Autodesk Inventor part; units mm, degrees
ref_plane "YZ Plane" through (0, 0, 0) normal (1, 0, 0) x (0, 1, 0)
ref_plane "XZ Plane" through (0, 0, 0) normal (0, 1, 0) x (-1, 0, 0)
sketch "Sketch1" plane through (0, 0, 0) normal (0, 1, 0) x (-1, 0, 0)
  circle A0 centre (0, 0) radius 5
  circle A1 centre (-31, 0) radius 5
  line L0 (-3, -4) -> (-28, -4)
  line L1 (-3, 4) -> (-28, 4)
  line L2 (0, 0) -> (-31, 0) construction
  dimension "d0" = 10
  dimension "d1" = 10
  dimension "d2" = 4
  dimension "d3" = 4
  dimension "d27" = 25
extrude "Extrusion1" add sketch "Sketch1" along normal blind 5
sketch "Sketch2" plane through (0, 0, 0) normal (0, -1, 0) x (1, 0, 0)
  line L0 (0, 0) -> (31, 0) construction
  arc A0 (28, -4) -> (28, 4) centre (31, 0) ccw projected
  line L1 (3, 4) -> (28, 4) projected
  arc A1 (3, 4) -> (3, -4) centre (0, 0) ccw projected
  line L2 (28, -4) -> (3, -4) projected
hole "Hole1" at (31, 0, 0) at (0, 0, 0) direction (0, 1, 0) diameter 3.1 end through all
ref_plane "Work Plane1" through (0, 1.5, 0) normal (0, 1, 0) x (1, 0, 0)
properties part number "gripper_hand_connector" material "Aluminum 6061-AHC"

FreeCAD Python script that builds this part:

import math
import FreeCAD as App
import Part
import Sketcher

V = App.Vector

doc = App.newDocument("Part")
body = doc.addObject("PartDesign::Body", "Body")

sketch1 = body.newObject("Sketcher::SketchObject", "Sketch")
sketch1.AttachmentSupport = (doc.getObject("XZ_Plane"), [""])
sketch1.MapMode = "FlatFace"
sketch1.addGeometry(Part.ArcOfCircle(Part.Circle(V(0, 0, 0), V(0, 0, 1), 5), math.radians(53.130102), math.radians(306.869898)), False)
sketch1.addGeometry(Part.LineSegment(V(3, 4, 0), V(28, 4, 0)), False)
sketch1.addGeometry(Part.ArcOfCircle(Part.Circle(V(31, 0, 0), V(0, 0, 1), 5), math.radians(-126.869898), math.radians(126.869898)), False)
sketch1.addGeometry(Part.LineSegment(V(28, -4, 0), V(3, -4, 0)), False)
sketch1.addConstraint(Sketcher.Constraint("Coincident", 0, 1, 1, 1))
sketch1.addConstraint(Sketcher.Constraint("Coincident", 1, 2, 2, 2))
sketch1.addConstraint(Sketcher.Constraint("Coincident", 2, 1, 3, 1))
sketch1.addConstraint(Sketcher.Constraint("Coincident", 3, 2, 0, 2))
sketch1.addConstraint(Sketcher.Constraint("Horizontal", 1))
sketch1.addConstraint(Sketcher.Constraint("Horizontal", 3))
sketch1.addConstraint(Sketcher.Constraint("Coincident", 0, 3, -1, 1))
sketch1.addConstraint(Sketcher.Constraint("Equal", 0, 2))
sketch1.addConstraint(Sketcher.Constraint("Symmetric", 1, 2, 2, 1, -1))
sketch1.addConstraint(Sketcher.Constraint("Radius", 0, 5.0))
sketch1.addConstraint(Sketcher.Constraint("DistanceX", 1, 1, 1, 2, 25.0))
sketch1.addConstraint(Sketcher.Constraint("DistanceY", -1, 1, 0, 1, 4.0))
pad1 = body.newObject("PartDesign::Pad", "Pad")
pad1.Profile = sketch1
pad1.Length = 5
pad1.Reversed = True

sketch2 = body.newObject("Sketcher::SketchObject", "Sketch001")
sketch2.AttachmentSupport = (doc.getObject("XZ_Plane"), [""])
sketch2.MapMode = "FlatFace"
sketch2.addGeometry(Part.Circle(V(31, 0, 0), V(0, 0, 1), 1.55), False)
sketch2.addGeometry(Part.Circle(V(0, 0, 0), V(0, 0, 1), 1.55), False)
sketch2.addConstraint(Sketcher.Constraint("Coincident", 1, 3, -1, 1))
sketch2.addConstraint(Sketcher.Constraint("Equal", 0, 1))
sketch2.addConstraint(Sketcher.Constraint("PointOnObject", 0, 3, -1))
sketch2.addConstraint(Sketcher.Constraint("Diameter", 0, 3.1))
sketch2.addConstraint(Sketcher.Constraint("DistanceX", -1, 1, 0, 3, 31.0))
doc.recompute()
hole = body.newObject("PartDesign::Hole", "Hole")
hole.Profile = sketch2
hole.ThreadType = "None"
hole.Diameter = 3.1
hole.DepthType = "ThroughAll"

doc.recompute()
